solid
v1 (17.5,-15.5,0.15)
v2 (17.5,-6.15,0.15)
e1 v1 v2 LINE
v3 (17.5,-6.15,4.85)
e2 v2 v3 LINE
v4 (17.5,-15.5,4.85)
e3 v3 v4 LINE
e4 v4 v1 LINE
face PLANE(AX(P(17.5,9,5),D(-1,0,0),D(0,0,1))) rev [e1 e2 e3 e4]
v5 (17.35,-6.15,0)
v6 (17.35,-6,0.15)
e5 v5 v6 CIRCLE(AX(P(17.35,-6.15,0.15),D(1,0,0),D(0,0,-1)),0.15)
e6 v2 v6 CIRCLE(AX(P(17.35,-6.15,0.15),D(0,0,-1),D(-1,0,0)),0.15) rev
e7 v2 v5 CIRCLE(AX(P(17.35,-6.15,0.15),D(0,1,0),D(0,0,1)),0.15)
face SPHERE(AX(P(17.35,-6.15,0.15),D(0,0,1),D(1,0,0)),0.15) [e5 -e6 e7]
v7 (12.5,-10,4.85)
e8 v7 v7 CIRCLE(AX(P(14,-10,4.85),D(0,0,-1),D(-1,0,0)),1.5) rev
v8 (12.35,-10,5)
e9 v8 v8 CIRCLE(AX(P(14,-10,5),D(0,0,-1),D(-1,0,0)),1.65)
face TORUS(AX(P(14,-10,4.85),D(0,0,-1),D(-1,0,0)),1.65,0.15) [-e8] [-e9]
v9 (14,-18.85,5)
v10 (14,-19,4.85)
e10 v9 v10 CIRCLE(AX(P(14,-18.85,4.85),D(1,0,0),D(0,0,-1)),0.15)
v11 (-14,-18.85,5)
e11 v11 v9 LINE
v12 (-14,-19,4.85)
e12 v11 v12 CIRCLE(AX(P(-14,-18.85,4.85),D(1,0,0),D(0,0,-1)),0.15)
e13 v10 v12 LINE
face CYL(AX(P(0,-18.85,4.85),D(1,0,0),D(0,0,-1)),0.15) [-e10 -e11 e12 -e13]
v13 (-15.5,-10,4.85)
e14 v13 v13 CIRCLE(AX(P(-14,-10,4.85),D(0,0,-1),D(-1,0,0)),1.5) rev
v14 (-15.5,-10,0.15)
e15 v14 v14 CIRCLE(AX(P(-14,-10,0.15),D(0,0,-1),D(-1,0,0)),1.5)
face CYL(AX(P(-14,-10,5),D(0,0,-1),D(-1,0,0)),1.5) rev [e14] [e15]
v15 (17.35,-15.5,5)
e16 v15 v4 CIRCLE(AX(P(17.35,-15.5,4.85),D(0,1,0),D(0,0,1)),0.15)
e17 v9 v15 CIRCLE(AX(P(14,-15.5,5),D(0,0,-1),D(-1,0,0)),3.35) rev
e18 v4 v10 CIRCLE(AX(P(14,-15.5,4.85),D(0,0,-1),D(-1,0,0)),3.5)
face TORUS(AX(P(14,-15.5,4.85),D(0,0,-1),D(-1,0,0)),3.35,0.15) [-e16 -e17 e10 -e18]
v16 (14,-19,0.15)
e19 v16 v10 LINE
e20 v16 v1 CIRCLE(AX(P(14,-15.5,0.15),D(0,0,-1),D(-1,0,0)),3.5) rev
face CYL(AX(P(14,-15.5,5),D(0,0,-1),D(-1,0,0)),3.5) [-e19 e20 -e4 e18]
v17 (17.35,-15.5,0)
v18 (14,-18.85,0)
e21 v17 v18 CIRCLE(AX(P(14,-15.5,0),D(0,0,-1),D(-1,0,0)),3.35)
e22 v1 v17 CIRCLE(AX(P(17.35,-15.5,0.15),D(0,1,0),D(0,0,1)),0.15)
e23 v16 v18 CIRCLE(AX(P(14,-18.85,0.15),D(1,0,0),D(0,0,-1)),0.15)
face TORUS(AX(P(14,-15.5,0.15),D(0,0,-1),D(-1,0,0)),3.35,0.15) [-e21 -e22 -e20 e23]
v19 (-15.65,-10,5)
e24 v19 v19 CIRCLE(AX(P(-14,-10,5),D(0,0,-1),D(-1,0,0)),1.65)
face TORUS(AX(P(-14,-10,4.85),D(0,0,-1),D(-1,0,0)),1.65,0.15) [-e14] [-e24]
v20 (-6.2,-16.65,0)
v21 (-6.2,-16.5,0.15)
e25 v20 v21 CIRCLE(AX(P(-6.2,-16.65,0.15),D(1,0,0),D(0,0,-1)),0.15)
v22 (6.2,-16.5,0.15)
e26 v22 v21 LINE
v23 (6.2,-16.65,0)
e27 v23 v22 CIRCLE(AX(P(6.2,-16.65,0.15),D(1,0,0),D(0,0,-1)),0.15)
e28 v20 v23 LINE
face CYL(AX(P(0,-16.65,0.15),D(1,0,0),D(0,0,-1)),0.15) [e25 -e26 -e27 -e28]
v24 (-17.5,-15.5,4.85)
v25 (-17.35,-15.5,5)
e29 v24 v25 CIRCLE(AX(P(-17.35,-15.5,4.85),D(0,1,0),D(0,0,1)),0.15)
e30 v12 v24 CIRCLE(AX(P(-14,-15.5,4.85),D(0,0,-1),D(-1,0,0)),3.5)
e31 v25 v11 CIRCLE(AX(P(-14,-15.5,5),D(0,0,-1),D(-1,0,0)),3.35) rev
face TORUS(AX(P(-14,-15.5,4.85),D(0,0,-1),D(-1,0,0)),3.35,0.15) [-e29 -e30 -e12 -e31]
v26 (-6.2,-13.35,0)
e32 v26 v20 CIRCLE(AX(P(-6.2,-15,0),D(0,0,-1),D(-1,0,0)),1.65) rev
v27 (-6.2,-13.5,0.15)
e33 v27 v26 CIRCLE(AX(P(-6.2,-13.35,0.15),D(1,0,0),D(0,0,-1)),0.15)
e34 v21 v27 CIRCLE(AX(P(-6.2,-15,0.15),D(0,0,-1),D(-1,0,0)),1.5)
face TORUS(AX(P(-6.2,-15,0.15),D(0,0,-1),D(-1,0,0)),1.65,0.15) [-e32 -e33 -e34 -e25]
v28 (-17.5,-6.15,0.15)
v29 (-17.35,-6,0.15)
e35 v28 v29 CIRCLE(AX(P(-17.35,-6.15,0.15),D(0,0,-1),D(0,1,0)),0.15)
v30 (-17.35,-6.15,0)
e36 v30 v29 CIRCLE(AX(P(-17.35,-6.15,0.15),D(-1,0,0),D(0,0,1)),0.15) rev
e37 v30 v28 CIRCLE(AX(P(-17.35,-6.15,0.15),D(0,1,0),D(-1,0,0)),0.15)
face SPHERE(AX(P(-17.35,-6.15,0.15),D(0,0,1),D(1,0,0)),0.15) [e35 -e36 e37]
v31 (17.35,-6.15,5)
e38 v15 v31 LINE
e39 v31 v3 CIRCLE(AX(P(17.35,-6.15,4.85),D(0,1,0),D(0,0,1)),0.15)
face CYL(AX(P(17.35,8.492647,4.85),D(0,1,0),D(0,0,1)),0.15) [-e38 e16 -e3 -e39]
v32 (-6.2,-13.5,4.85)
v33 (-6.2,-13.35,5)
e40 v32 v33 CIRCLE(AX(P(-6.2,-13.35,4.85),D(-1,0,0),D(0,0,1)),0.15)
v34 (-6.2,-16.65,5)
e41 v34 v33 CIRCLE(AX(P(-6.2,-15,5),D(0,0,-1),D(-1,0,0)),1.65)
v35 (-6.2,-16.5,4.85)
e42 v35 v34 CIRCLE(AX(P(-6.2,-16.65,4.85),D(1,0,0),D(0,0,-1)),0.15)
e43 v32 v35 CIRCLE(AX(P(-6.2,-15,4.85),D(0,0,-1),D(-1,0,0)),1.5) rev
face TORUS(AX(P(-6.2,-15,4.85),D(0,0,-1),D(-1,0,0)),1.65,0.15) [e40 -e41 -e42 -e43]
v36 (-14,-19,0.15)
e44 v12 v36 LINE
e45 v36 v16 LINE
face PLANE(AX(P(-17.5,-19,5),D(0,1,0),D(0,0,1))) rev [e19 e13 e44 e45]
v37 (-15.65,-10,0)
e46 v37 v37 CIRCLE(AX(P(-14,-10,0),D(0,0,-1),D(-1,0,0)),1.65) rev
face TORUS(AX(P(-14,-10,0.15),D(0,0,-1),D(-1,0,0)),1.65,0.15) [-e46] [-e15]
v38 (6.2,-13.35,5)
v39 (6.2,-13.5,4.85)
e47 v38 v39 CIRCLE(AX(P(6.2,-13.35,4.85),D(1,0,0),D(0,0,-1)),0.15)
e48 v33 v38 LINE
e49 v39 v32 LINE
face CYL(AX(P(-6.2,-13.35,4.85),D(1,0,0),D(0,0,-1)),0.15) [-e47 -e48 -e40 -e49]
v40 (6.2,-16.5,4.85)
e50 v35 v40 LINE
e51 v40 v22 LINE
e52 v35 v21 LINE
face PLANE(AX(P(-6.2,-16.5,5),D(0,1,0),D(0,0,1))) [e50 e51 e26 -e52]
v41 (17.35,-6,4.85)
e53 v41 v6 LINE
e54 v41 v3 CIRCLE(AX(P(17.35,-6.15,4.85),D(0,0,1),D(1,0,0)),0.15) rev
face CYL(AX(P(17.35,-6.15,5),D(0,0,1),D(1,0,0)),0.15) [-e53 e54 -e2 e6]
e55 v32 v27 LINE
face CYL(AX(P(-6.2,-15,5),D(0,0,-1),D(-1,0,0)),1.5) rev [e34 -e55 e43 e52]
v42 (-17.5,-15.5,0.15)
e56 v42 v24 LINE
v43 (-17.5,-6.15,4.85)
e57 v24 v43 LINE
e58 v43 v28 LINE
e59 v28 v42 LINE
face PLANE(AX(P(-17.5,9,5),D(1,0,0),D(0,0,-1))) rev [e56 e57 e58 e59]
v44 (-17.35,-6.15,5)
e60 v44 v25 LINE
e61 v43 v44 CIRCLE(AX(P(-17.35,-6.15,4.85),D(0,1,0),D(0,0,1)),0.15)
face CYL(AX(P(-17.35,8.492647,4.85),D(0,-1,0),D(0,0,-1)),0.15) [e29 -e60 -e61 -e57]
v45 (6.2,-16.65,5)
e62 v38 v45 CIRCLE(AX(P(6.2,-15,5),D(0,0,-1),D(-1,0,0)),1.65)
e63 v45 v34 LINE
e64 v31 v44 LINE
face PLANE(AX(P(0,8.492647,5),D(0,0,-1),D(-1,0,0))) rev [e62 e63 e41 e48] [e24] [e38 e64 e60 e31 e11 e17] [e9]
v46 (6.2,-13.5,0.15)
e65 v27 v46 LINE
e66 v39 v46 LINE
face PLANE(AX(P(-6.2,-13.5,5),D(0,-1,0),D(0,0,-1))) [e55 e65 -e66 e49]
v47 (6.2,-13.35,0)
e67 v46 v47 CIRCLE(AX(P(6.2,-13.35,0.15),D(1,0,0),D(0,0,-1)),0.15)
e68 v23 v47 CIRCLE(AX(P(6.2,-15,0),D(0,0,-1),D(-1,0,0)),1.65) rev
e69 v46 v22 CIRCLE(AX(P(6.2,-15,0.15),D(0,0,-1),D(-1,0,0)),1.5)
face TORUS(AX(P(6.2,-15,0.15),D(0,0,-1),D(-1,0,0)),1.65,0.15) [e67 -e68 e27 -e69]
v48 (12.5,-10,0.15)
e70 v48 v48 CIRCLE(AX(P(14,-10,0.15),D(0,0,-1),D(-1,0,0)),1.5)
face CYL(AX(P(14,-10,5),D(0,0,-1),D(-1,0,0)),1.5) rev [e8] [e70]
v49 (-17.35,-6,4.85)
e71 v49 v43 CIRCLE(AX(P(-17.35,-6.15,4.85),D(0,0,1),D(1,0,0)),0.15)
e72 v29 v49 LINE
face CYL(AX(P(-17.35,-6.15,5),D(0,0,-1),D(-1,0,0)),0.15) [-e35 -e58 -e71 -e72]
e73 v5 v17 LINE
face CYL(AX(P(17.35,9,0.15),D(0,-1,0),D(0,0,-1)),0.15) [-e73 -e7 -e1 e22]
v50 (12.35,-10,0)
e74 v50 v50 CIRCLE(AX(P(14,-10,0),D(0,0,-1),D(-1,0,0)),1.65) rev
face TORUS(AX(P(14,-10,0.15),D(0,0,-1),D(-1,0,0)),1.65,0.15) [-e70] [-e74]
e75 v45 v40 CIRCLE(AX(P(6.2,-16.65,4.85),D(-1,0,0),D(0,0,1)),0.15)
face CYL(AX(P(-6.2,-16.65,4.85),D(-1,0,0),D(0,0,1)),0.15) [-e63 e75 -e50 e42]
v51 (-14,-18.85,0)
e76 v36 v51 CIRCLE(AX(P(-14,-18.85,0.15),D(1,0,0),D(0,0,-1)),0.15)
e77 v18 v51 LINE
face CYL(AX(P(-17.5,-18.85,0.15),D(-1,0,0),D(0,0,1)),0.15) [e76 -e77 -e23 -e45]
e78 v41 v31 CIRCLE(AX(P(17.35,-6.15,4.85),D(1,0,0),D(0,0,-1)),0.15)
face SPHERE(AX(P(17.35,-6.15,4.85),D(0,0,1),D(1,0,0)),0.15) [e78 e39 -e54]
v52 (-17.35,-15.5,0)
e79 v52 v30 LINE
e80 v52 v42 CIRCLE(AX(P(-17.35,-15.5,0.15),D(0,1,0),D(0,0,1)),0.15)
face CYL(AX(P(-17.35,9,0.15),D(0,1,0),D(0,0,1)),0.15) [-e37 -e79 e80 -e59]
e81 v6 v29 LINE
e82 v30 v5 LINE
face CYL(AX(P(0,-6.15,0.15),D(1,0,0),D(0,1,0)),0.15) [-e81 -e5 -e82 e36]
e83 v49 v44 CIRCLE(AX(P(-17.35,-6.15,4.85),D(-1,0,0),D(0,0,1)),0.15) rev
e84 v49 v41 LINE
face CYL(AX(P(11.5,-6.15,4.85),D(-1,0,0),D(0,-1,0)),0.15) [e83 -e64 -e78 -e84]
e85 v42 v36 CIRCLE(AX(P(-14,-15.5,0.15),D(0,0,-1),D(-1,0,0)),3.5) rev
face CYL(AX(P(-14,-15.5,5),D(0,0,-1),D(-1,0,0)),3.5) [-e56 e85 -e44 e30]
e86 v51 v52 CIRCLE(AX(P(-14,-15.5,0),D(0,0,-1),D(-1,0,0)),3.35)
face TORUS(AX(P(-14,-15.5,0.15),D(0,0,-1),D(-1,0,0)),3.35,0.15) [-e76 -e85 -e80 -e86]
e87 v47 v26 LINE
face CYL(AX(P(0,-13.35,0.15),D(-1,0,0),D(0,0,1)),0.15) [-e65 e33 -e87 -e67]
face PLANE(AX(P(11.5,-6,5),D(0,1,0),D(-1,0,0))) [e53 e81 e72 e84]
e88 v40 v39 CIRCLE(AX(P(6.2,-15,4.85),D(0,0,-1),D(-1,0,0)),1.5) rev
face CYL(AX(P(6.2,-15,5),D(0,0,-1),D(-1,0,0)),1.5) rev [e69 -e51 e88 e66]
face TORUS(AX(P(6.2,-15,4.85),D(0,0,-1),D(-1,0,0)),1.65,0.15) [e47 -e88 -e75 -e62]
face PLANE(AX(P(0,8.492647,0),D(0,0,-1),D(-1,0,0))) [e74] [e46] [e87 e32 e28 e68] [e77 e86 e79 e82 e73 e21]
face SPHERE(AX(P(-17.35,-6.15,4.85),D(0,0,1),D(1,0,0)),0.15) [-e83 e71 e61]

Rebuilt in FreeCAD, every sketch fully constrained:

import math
import FreeCAD as App
import Part
import Sketcher
Q = App.Units.Quantity


def edges_at(feature, points):
    """Names of the edges that pass closest to the given points."""
    edges = feature.Shape.Edges
    near = lambda p: min(range(len(edges)), key=lambda i: edges[i].distToShape(Part.Vertex(*p))[0])
    return sorted({f"Edge{near(p) + 1}" for p in points})

doc = App.newDocument("Part")
body = doc.addObject("PartDesign::Body", "Body")

sketch1 = body.newObject("Sketcher::SketchObject", "Sketch")
sketch1.AttachmentSupport = (doc.getObject("XY_Plane"), [""])
sketch1.MapMode = "FlatFace"
sketch1.addGeometry([
    Part.LineSegment(App.Vector(-17.5, 9, 0), App.Vector(-17.5, -19, 0)),
    Part.LineSegment(App.Vector(-17.5, -19, 0), App.Vector(17.5, -19, 0)),
    Part.LineSegment(App.Vector(17.5, -19, 0), App.Vector(17.5, 9, 0)),
    Part.ArcOfCircle(Part.Circle(App.Vector(0, 8.5, 0), App.Vector(0, 0, 1), 17.5), math.radians(2), math.radians(178)),
    Part.Circle(App.Vector(-14, -10, 0), App.Vector(0, 0, 1), 1.5),
    Part.Circle(App.Vector(-14, 0, 0), App.Vector(0, 0, 1), 1),
    Part.ArcOfCircle(Part.Circle(App.Vector(-6.2, -15, 0), App.Vector(0, 0, 1), 1.5), math.radians(90), math.radians(270)),
    Part.LineSegment(App.Vector(-6.2, -13.5, 0), App.Vector(6.2, -13.5, 0)),
    Part.ArcOfCircle(Part.Circle(App.Vector(6.2, -15, 0), App.Vector(0, 0, 1), 1.5), math.radians(-90), math.radians(90)),
    Part.LineSegment(App.Vector(6.2, -16.5, 0), App.Vector(-6.2, -16.5, 0)),
    Part.Circle(App.Vector(14, -10, 0), App.Vector(0, 0, 1), 1.5),
    Part.LineSegment(App.Vector(11.5, -6, 0), App.Vector(-11.5, -6, 0)),
    Part.LineSegment(App.Vector(-11.5, -6, 0), App.Vector(-11.5, 6, 0)),
    Part.LineSegment(App.Vector(-11.5, 6, 0), App.Vector(11.5, 6, 0)),
    Part.LineSegment(App.Vector(11.5, 6, 0), App.Vector(11.5, -6, 0)),
    Part.Circle(App.Vector(14, 0, 0), App.Vector(0, 0, 1), 1),
    Part.Circle(App.Vector(-8.5, 16, 0), App.Vector(0, 0, 1), 2),
    Part.Circle(App.Vector(8.5, 16, 0), App.Vector(0, 0, 1), 2),
], False)
sketch1.addConstraint([
    Sketcher.Constraint("Coincident", 0, 2, 1, 1),
    Sketcher.Constraint("Coincident", 1, 2, 2, 1),
    Sketcher.Constraint("Coincident", 2, 2, 3, 1),
    Sketcher.Constraint("Coincident", 3, 2, 0, 1),
    Sketcher.Constraint("Tangent", 6, 1, 7, 1),
    Sketcher.Constraint("Tangent", 7, 2, 8, 2),
    Sketcher.Constraint("Tangent", 8, 1, 9, 1),
    Sketcher.Constraint("Tangent", 9, 2, 6, 2),
    Sketcher.Constraint("Coincident", 11, 2, 12, 1),
    Sketcher.Constraint("Coincident", 12, 2, 13, 1),
    Sketcher.Constraint("Coincident", 13, 2, 14, 1),
    Sketcher.Constraint("Coincident", 14, 2, 11, 1),
    Sketcher.Constraint("Vertical", 0),
    Sketcher.Constraint("Horizontal", 1),
    Sketcher.Constraint("Vertical", 2),
    Sketcher.Constraint("Horizontal", 7),
    Sketcher.Constraint("Horizontal", 9),
    Sketcher.Constraint("Horizontal", 11),
    Sketcher.Constraint("Vertical", 12),
    Sketcher.Constraint("Horizontal", 13),
    Sketcher.Constraint("Vertical", 14),
    Sketcher.Constraint("Equal", 4, 6),
    Sketcher.Constraint("Equal", 8, 10),
    Sketcher.Constraint("Equal", 5, 15),
    Sketcher.Constraint("Equal", 16, 17),
    Sketcher.Constraint("Symmetric", 5, 3, 15, 3, -1, 1),
    Sketcher.Constraint("Symmetric", 11, 2, 13, 2, -1, 1),
    Sketcher.Constraint("Symmetric", 4, 3, 10, 3, -2),
    Sketcher.Constraint("Symmetric", 16, 3, 17, 3, -2),
    Sketcher.Constraint("Symmetric", 2, 2, 3, 2, -2),
    Sketcher.Constraint("PointOnObject", 5, 3, -1),
    Sketcher.Constraint("Vertical", 4, 3, 5, 3),
    Sketcher.Constraint("Diameter", 4, Q("3 mm")),
    Sketcher.Constraint("Diameter", 5, Q("2 mm")),
    Sketcher.Constraint("Diameter", 16, Q("4 mm")),
    Sketcher.Constraint("DistanceX", 1, 1, 1, 2, Q("35 mm")),
    Sketcher.Constraint("DistanceX", 11, 2, 11, 1, Q("23 mm")),
    Sketcher.Constraint("DistanceY", 0, 2, 0, 1, Q("28 mm")),
    Sketcher.Constraint("DistanceY", 12, 1, 12, 2, Q("12 mm")),
    Sketcher.Constraint("DistanceX", 7, 1, 7, 2, Q("12.4 mm")),
    Sketcher.Constraint("DistanceX", 4, 3, -1, 1, Q("14 mm")),
    Sketcher.Constraint("DistanceY", 4, 3, -1, 1, Q("10 mm")),
    Sketcher.Constraint("DistanceY", 6, 3, -1, 1, Q("15 mm")),
    Sketcher.Constraint("DistanceY", -1, 1, 16, 3, Q("16 mm")),
    Sketcher.Constraint("DistanceY", 0, 2, -1, 1, Q("19 mm")),
    Sketcher.Constraint("DistanceX", 16, 3, 17, 3, Q("17 mm")),
    Sketcher.Constraint("DistanceX", 6, 3, -1, 1, Q("6.2 mm")),
    Sketcher.Constraint("Radius", 3, Q("17.507353 mm")),
])
pad1 = body.newObject("PartDesign::Pad", "Pad")
pad1.Profile = sketch1
pad1.Length = 5
doc.recompute()

fillet = body.newObject("PartDesign::Fillet", "Fillet")
fillet.Base = (pad1, edges_at(pad1, [(17.5, -19, 2.5), (-17.5, -19, 2.5)]))
fillet.Radius = 3.5

sketch2 = body.newObject("Sketcher::SketchObject", "Sketch001")
sketch2.AttachmentSupport = (doc.getObject("XY_Plane"), [""])
sketch2.MapMode = "FlatFace"
sketch2.AttachmentOffset = App.Placement(App.Vector(0, 0, 5), App.Rotation())
sketch2.addGeometry([
    Part.LineSegment(App.Vector(-143, -6, 0), App.Vector(148, -6, 0)),
    Part.LineSegment(App.Vector(148, -6, 0), App.Vector(148, 235, 0)),
    Part.LineSegment(App.Vector(148, 235, 0), App.Vector(-143, 235, 0)),
    Part.LineSegment(App.Vector(-143, 235, 0), App.Vector(-143, -6, 0)),
], False)
sketch2.addConstraint([
    Sketcher.Constraint("Coincident", 0, 2, 1, 1),
    Sketcher.Constraint("Coincident", 1, 2, 2, 1),
    Sketcher.Constraint("Coincident", 2, 2, 3, 1),
    Sketcher.Constraint("Coincident", 3, 2, 0, 1),
    Sketcher.Constraint("Horizontal", 0),
    Sketcher.Constraint("Vertical", 1),
    Sketcher.Constraint("Horizontal", 2),
    Sketcher.Constraint("Vertical", 3),
    Sketcher.Constraint("DistanceY", 0, 2, -1, 1, Q("6 mm")),
    Sketcher.Constraint("DistanceX", -1, 1, 0, 2, Q("147.935502 mm")),
    Sketcher.Constraint("DistanceX", 2, 2, -1, 1, Q("142.935502 mm")),
    Sketcher.Constraint("DistanceY", 1, 1, 1, 2, Q("240.871003 mm")),
])
pocket1 = body.newObject("PartDesign::Pocket", "Pocket")
pocket1.Profile = sketch2
pocket1.Type = "ThroughAll"
pocket1.Midplane = True
doc.recompute()

fillet2 = body.newObject("PartDesign::Fillet", "Fillet001")
fillet2.Base = (pocket1, ["Edge1"])
fillet2.UseAllEdges = True
fillet2.Radius = 0.15

doc.recompute()
